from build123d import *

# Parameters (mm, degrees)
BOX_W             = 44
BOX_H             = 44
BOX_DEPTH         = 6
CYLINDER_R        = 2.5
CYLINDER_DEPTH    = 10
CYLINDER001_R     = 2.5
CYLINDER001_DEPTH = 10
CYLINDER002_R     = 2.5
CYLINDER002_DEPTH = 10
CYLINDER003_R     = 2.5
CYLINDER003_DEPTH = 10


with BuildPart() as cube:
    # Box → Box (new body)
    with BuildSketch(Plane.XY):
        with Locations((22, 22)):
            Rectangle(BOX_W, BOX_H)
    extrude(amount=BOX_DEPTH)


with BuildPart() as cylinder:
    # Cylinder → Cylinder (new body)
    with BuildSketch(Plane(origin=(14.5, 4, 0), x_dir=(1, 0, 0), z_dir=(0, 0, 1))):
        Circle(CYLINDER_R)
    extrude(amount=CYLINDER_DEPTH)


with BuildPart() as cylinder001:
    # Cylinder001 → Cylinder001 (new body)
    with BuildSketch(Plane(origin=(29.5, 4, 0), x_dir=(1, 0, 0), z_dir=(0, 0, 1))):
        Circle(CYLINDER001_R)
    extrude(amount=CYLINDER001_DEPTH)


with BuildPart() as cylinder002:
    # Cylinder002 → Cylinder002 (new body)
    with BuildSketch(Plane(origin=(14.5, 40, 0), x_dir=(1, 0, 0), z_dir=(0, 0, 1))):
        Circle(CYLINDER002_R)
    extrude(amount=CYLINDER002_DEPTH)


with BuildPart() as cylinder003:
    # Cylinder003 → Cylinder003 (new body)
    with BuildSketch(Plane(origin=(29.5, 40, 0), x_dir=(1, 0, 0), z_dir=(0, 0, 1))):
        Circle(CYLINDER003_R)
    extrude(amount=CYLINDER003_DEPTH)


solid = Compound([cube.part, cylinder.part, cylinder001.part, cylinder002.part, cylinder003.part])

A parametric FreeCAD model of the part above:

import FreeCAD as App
import Part
import Sketcher
from FreeCAD import Vector

doc = App.newDocument("Part")
body = doc.addObject("PartDesign::Body", "Body")

# Sketch on XY plane
sketch1 = body.newObject("Sketcher::SketchObject", "Sketch")
sketch1.AttachmentSupport = (doc.getObject("XY_Plane"), [""])
sketch1.MapMode = "FlatFace"
sketch1.addGeometry([
    Part.LineSegment(Vector(0, 44, 0), Vector(0, 0, 0)),
    Part.LineSegment(Vector(0, 0, 0), Vector(44, 0, 0)),
    Part.LineSegment(Vector(44, 0, 0), Vector(44, 44, 0)),
    Part.LineSegment(Vector(44, 44, 0), Vector(0, 44, 0)),
], False)
sketch1.addConstraint([
    Sketcher.Constraint("Coincident", 0, 2, 1, 1),
    Sketcher.Constraint("Coincident", 1, 2, 2, 1),
    Sketcher.Constraint("Coincident", 2, 2, 3, 1),
    Sketcher.Constraint("Coincident", 3, 2, 0, 1),
    Sketcher.Constraint("Vertical", 0),
    Sketcher.Constraint("Horizontal", 1),
    Sketcher.Constraint("Vertical", 2),
    Sketcher.Constraint("Horizontal", 3),
    Sketcher.Constraint("Coincident", 0, 2, -1, 1),
    Sketcher.Constraint("Equal", 3, 0),
    Sketcher.Constraint("DistanceX", 1, 1, 1, 2, 44.0),
])
pad1 = body.newObject("PartDesign::Pad", "Pad")
pad1.Profile = sketch1
pad1.Length = 6
body2 = doc.addObject("PartDesign::Body", "Body001")

# Sketch on XY plane
sketch2 = body2.newObject("Sketcher::SketchObject", "Sketch001")
sketch2.AttachmentSupport = (doc.getObject("XY_Plane001"), [""])
sketch2.MapMode = "FlatFace"
sketch2.addGeometry(Part.Circle(Vector(14.5, 4, 0), Vector(0, 0, 1), 2.5), False)
sketch2.addConstraint([
    Sketcher.Constraint("Diameter", 0, 5.0),
    Sketcher.Constraint("DistanceY", -1, 1, 0, 3, 4.0),
    Sketcher.Constraint("DistanceX", -1, 1, 0, 3, 14.5),
])
pad2 = body2.newObject("PartDesign::Pad", "Pad001")
pad2.Profile = sketch2
pad2.Length = 10
body3 = doc.addObject("PartDesign::Body", "Body002")

# Sketch on XY plane
sketch3 = body3.newObject("Sketcher::SketchObject", "Sketch002")
sketch3.AttachmentSupport = (doc.getObject("XY_Plane002"), [""])
sketch3.MapMode = "FlatFace"
sketch3.addGeometry(Part.Circle(Vector(29.5, 4, 0), Vector(0, 0, 1), 2.5), False)
sketch3.addConstraint([
    Sketcher.Constraint("Diameter", 0, 5.0),
    Sketcher.Constraint("DistanceY", -1, 1, 0, 3, 4.0),
    Sketcher.Constraint("DistanceX", -1, 1, 0, 3, 29.5),
])
pad3 = body3.newObject("PartDesign::Pad", "Pad002")
pad3.Profile = sketch3
pad3.Length = 10
body4 = doc.addObject("PartDesign::Body", "Body003")

# Sketch on XY plane
sketch4 = body4.newObject("Sketcher::SketchObject", "Sketch003")
sketch4.AttachmentSupport = (doc.getObject("XY_Plane003"), [""])
sketch4.MapMode = "FlatFace"
sketch4.addGeometry(Part.Circle(Vector(14.5, 40, 0), Vector(0, 0, 1), 2.5), False)
sketch4.addConstraint([
    Sketcher.Constraint("Diameter", 0, 5.0),
    Sketcher.Constraint("DistanceY", -1, 1, 0, 3, 40.0),
    Sketcher.Constraint("DistanceX", -1, 1, 0, 3, 14.5),
])
pad4 = body4.newObject("PartDesign::Pad", "Pad003")
pad4.Profile = sketch4
pad4.Length = 10
body5 = doc.addObject("PartDesign::Body", "Body004")

# Sketch on XY plane
sketch5 = body5.newObject("Sketcher::SketchObject", "Sketch004")
sketch5.AttachmentSupport = (doc.getObject("XY_Plane004"), [""])
sketch5.MapMode = "FlatFace"
sketch5.addGeometry(Part.Circle(Vector(29.5, 40, 0), Vector(0, 0, 1), 2.5), False)
sketch5.addConstraint([
    Sketcher.Constraint("Diameter", 0, 5.0),
    Sketcher.Constraint("DistanceY", -1, 1, 0, 3, 40.0),
    Sketcher.Constraint("DistanceX", -1, 1, 0, 3, 29.5),
])
pad5 = body5.newObject("PartDesign::Pad", "Pad004")
pad5.Profile = sketch5
pad5.Length = 10

doc.recompute()
